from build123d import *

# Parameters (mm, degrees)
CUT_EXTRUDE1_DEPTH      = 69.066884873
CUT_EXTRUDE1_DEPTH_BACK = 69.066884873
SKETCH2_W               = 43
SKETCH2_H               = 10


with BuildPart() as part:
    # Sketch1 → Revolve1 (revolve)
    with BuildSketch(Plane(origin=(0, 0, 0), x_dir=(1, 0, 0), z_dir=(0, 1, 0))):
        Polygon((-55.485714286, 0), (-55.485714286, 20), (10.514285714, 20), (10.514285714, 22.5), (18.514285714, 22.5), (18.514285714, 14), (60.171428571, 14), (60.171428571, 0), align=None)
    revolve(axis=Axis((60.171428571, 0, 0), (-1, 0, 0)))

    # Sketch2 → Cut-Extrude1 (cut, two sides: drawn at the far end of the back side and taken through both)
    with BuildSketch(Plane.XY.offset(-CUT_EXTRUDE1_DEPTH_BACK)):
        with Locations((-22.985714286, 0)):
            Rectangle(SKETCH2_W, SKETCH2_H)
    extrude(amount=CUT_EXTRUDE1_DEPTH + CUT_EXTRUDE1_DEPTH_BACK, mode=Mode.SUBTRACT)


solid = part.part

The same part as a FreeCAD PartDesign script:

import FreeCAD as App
import Part
import Sketcher
from FreeCAD import Vector

doc = App.newDocument("Part")
body = doc.addObject("PartDesign::Body", "Body")

sketch1 = doc.addObject("Sketcher::SketchObject", "Sketch")
body.addObject(sketch1)
sketch1.AttachmentSupport = (doc.XZ_Plane, [""])
sketch1.MapMode = "FlatFace"
sketch1.addGeometry(Part.LineSegment(Vector(-55.485714, -20, 0), Vector(-55.485714, 0, 0)), False)
sketch1.addGeometry(Part.LineSegment(Vector(-55.485714, 0, 0), Vector(60.171429, 0, 0)), False)
sketch1.addGeometry(Part.LineSegment(Vector(60.171429, 0, 0), Vector(60.171429, -14, 0)), False)
sketch1.addGeometry(Part.LineSegment(Vector(60.171429, -14, 0), Vector(18.514286, -14, 0)), False)
sketch1.addGeometry(Part.LineSegment(Vector(18.514286, -14, 0), Vector(18.514286, -22.5, 0)), False)
sketch1.addGeometry(Part.LineSegment(Vector(18.514286, -22.5, 0), Vector(10.514286, -22.5, 0)), False)
sketch1.addGeometry(Part.LineSegment(Vector(10.514286, -22.5, 0), Vector(10.514286, -20, 0)), False)
sketch1.addGeometry(Part.LineSegment(Vector(10.514286, -20, 0), Vector(-55.485714, -20, 0)), False)
sketch1.addConstraint(Sketcher.Constraint("Coincident", 0, 2, 1, 1))
sketch1.addConstraint(Sketcher.Constraint("Coincident", 1, 2, 2, 1))
sketch1.addConstraint(Sketcher.Constraint("Coincident", 2, 2, 3, 1))
sketch1.addConstraint(Sketcher.Constraint("Coincident", 3, 2, 4, 1))
sketch1.addConstraint(Sketcher.Constraint("Coincident", 4, 2, 5, 1))
sketch1.addConstraint(Sketcher.Constraint("Coincident", 5, 2, 6, 1))
sketch1.addConstraint(Sketcher.Constraint("Coincident", 6, 2, 7, 1))
sketch1.addConstraint(Sketcher.Constraint("Coincident", 7, 2, 0, 1))
sketch1.addConstraint(Sketcher.Constraint("Vertical", 0))
sketch1.addConstraint(Sketcher.Constraint("Horizontal", 1))
sketch1.addConstraint(Sketcher.Constraint("Vertical", 2))
sketch1.addConstraint(Sketcher.Constraint("Horizontal", 3))
sketch1.addConstraint(Sketcher.Constraint("Vertical", 4))
sketch1.addConstraint(Sketcher.Constraint("Horizontal", 5))
sketch1.addConstraint(Sketcher.Constraint("Vertical", 6))
sketch1.addConstraint(Sketcher.Constraint("Horizontal", 7))
sketch1.addConstraint(Sketcher.Constraint("PointOnObject", 0, 2, -1))
sketch1.addConstraint(Sketcher.Constraint("DistanceX", 5, 2, 5, 1, 8.0))
sketch1.addConstraint(Sketcher.Constraint("DistanceX", 7, 2, 7, 1, 66.0))
sketch1.addConstraint(Sketcher.Constraint("DistanceY", 0, 1, 0, 2, 20.0))
sketch1.addConstraint(Sketcher.Constraint("DistanceY", 2, 2, 2, 1, 14.0))
sketch1.addConstraint(Sketcher.Constraint("DistanceY", 4, 2, 4, 1, 8.5))
sketch1.addConstraint(Sketcher.Constraint("DistanceX", 1, 1, 1, 2, 115.657143))
sketch1.addConstraint(Sketcher.Constraint("DistanceX", -1, 1, 1, 2, 60.171429))
revolution = doc.addObject("PartDesign::Revolution", "Revolution")
body.addObject(revolution)
revolution.Profile = sketch1
revolution.ReferenceAxis = (sketch1, ["H_Axis"])
revolution.Angle = 360

sketch2 = doc.addObject("Sketcher::SketchObject", "Sketch001")
body.addObject(sketch2)
sketch2.AttachmentSupport = (doc.XY_Plane, [""])
sketch2.MapMode = "FlatFace"
sketch2.addGeometry(Part.LineSegment(Vector(-44.485714, 5, 0), Vector(-44.485714, -5, 0)), False)
sketch2.addGeometry(Part.LineSegment(Vector(-44.485714, -5, 0), Vector(-1.485714, -5, 0)), False)
sketch2.addGeometry(Part.LineSegment(Vector(-1.485714, -5, 0), Vector(-1.485714, 5, 0)), False)
sketch2.addGeometry(Part.LineSegment(Vector(-1.485714, 5, 0), Vector(-44.485714, 5, 0)), False)
sketch2.addConstraint(Sketcher.Constraint("Coincident", 0, 2, 1, 1))
sketch2.addConstraint(Sketcher.Constraint("Coincident", 1, 2, 2, 1))
sketch2.addConstraint(Sketcher.Constraint("Coincident", 2, 2, 3, 1))
sketch2.addConstraint(Sketcher.Constraint("Coincident", 3, 2, 0, 1))
sketch2.addConstraint(Sketcher.Constraint("Vertical", 0))
sketch2.addConstraint(Sketcher.Constraint("Horizontal", 1))
sketch2.addConstraint(Sketcher.Constraint("Vertical", 2))
sketch2.addConstraint(Sketcher.Constraint("Horizontal", 3))
sketch2.addConstraint(Sketcher.Constraint("DistanceX", 1, 1, 1, 2, 43.0))
sketch2.addConstraint(Sketcher.Constraint("DistanceY", 0, 2, 0, 1, 10.0))
sketch2.addConstraint(Sketcher.Constraint("DistanceY", 0, 2, -1, 1, 5.0))
sketch2.addConstraint(Sketcher.Constraint("DistanceX", 0, 2, -1, 1, 44.485714))
pocket1 = doc.addObject("PartDesign::Pocket", "Pocket")
body.addObject(pocket1)
pocket1.Profile = sketch2
pocket1.Type = "ThroughAll"
pocket1.Midplane = True

doc.recompute()
